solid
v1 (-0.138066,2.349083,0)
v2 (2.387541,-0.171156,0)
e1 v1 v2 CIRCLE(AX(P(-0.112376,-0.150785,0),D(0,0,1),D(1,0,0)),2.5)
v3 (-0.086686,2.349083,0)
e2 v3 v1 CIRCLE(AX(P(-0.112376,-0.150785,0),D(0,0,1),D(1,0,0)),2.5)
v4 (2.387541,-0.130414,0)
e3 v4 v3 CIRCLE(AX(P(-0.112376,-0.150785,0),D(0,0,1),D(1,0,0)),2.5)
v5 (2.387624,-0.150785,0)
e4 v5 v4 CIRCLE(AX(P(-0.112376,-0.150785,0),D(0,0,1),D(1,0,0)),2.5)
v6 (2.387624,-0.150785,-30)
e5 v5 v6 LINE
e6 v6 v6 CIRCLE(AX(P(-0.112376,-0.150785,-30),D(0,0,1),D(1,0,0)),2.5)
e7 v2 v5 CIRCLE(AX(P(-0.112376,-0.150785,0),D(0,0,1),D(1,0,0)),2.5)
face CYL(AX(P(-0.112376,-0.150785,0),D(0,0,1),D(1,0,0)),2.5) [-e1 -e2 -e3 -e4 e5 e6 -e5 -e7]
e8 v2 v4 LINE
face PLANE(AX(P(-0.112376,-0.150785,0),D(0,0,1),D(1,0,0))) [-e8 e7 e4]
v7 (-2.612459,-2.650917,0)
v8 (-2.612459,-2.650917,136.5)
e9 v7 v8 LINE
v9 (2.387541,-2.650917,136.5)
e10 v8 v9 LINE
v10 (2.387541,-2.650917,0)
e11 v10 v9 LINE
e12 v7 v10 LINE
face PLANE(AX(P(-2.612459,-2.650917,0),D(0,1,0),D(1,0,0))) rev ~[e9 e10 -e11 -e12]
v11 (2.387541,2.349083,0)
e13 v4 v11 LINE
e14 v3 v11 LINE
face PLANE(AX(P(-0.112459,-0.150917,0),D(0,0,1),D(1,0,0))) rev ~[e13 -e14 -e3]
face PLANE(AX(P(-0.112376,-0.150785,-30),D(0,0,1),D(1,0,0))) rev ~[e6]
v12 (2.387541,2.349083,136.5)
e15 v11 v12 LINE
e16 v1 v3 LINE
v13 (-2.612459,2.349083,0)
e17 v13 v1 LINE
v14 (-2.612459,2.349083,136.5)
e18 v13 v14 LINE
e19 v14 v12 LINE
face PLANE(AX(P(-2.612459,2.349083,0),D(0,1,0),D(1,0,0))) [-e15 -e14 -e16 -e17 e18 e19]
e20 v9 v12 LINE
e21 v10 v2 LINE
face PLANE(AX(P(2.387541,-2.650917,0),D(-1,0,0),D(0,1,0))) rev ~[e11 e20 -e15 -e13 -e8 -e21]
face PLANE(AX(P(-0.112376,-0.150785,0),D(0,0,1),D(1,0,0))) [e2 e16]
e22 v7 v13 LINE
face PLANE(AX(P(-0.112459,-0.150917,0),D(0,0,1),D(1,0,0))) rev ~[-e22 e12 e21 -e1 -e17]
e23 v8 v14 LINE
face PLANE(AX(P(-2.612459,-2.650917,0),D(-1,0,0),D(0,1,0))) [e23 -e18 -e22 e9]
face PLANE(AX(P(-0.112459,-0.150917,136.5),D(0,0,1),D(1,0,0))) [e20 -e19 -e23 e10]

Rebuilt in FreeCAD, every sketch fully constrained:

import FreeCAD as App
import Part
import Sketcher

V = App.Vector


def add_polygon(sketch, points):
    """Adds a closed chain of lines whose ends are joined by coincident constraints."""
    first, n = sketch.GeometryCount, len(points)
    for a, b in zip(points, points[1:] + points[:1]):
        sketch.addGeometry(Part.LineSegment(App.Vector(*a, 0), App.Vector(*b, 0)), False)
    for i in range(n):
        sketch.addConstraint(Sketcher.Constraint("Coincident", first + i, 2, first + (i + 1) % n, 1))

doc = App.newDocument("Part")
body = doc.addObject("PartDesign::Body", "Body")

sketch1 = body.newObject("Sketcher::SketchObject", "Sketch")
sketch1.AttachmentSupport = (doc.getObject("XY_Plane"), [""])
sketch1.MapMode = "FlatFace"
add_polygon(sketch1, [(-3, 2), (-3, -3), (2, -3), (2, 2)])
sketch1.addConstraint([
    Sketcher.Constraint("Vertical", 0),
    Sketcher.Constraint("Horizontal", 1),
    Sketcher.Constraint("Vertical", 2),
    Sketcher.Constraint("Horizontal", 3),
    Sketcher.Constraint("Equal", 3, 0),
    Sketcher.Constraint("DistanceX", 1, 1, 1, 2, 5.0),
    Sketcher.Constraint("DistanceX", 0, 2, -1, 1, 2.612459),
    Sketcher.Constraint("DistanceY", 0, 2, -1, 1, 2.650917),
])
pad1 = body.newObject("PartDesign::Pad", "Pad")
pad1.Profile = sketch1
pad1.Length = 136.5

sketch2 = body.newObject("Sketcher::SketchObject", "Sketch001")
sketch2.AttachmentSupport = (doc.getObject("XY_Plane"), [""])
sketch2.MapMode = "FlatFace"
sketch2.addGeometry(Part.Circle(V(-0.1, -0.2, 0), V(0, 0, 1), 2.5), False)
sketch2.addConstraint([
    Sketcher.Constraint("Diameter", 0, 5.0),
    Sketcher.Constraint("DistanceX", 0, 3, -1, 1, 0.112376),
    Sketcher.Constraint("DistanceY", 0, 3, -1, 1, 0.150785),
])
pad2 = body.newObject("PartDesign::Pad", "Pad001")
pad2.Profile = sketch2
pad2.Length = 30
pad2.Reversed = True

doc.recompute()
